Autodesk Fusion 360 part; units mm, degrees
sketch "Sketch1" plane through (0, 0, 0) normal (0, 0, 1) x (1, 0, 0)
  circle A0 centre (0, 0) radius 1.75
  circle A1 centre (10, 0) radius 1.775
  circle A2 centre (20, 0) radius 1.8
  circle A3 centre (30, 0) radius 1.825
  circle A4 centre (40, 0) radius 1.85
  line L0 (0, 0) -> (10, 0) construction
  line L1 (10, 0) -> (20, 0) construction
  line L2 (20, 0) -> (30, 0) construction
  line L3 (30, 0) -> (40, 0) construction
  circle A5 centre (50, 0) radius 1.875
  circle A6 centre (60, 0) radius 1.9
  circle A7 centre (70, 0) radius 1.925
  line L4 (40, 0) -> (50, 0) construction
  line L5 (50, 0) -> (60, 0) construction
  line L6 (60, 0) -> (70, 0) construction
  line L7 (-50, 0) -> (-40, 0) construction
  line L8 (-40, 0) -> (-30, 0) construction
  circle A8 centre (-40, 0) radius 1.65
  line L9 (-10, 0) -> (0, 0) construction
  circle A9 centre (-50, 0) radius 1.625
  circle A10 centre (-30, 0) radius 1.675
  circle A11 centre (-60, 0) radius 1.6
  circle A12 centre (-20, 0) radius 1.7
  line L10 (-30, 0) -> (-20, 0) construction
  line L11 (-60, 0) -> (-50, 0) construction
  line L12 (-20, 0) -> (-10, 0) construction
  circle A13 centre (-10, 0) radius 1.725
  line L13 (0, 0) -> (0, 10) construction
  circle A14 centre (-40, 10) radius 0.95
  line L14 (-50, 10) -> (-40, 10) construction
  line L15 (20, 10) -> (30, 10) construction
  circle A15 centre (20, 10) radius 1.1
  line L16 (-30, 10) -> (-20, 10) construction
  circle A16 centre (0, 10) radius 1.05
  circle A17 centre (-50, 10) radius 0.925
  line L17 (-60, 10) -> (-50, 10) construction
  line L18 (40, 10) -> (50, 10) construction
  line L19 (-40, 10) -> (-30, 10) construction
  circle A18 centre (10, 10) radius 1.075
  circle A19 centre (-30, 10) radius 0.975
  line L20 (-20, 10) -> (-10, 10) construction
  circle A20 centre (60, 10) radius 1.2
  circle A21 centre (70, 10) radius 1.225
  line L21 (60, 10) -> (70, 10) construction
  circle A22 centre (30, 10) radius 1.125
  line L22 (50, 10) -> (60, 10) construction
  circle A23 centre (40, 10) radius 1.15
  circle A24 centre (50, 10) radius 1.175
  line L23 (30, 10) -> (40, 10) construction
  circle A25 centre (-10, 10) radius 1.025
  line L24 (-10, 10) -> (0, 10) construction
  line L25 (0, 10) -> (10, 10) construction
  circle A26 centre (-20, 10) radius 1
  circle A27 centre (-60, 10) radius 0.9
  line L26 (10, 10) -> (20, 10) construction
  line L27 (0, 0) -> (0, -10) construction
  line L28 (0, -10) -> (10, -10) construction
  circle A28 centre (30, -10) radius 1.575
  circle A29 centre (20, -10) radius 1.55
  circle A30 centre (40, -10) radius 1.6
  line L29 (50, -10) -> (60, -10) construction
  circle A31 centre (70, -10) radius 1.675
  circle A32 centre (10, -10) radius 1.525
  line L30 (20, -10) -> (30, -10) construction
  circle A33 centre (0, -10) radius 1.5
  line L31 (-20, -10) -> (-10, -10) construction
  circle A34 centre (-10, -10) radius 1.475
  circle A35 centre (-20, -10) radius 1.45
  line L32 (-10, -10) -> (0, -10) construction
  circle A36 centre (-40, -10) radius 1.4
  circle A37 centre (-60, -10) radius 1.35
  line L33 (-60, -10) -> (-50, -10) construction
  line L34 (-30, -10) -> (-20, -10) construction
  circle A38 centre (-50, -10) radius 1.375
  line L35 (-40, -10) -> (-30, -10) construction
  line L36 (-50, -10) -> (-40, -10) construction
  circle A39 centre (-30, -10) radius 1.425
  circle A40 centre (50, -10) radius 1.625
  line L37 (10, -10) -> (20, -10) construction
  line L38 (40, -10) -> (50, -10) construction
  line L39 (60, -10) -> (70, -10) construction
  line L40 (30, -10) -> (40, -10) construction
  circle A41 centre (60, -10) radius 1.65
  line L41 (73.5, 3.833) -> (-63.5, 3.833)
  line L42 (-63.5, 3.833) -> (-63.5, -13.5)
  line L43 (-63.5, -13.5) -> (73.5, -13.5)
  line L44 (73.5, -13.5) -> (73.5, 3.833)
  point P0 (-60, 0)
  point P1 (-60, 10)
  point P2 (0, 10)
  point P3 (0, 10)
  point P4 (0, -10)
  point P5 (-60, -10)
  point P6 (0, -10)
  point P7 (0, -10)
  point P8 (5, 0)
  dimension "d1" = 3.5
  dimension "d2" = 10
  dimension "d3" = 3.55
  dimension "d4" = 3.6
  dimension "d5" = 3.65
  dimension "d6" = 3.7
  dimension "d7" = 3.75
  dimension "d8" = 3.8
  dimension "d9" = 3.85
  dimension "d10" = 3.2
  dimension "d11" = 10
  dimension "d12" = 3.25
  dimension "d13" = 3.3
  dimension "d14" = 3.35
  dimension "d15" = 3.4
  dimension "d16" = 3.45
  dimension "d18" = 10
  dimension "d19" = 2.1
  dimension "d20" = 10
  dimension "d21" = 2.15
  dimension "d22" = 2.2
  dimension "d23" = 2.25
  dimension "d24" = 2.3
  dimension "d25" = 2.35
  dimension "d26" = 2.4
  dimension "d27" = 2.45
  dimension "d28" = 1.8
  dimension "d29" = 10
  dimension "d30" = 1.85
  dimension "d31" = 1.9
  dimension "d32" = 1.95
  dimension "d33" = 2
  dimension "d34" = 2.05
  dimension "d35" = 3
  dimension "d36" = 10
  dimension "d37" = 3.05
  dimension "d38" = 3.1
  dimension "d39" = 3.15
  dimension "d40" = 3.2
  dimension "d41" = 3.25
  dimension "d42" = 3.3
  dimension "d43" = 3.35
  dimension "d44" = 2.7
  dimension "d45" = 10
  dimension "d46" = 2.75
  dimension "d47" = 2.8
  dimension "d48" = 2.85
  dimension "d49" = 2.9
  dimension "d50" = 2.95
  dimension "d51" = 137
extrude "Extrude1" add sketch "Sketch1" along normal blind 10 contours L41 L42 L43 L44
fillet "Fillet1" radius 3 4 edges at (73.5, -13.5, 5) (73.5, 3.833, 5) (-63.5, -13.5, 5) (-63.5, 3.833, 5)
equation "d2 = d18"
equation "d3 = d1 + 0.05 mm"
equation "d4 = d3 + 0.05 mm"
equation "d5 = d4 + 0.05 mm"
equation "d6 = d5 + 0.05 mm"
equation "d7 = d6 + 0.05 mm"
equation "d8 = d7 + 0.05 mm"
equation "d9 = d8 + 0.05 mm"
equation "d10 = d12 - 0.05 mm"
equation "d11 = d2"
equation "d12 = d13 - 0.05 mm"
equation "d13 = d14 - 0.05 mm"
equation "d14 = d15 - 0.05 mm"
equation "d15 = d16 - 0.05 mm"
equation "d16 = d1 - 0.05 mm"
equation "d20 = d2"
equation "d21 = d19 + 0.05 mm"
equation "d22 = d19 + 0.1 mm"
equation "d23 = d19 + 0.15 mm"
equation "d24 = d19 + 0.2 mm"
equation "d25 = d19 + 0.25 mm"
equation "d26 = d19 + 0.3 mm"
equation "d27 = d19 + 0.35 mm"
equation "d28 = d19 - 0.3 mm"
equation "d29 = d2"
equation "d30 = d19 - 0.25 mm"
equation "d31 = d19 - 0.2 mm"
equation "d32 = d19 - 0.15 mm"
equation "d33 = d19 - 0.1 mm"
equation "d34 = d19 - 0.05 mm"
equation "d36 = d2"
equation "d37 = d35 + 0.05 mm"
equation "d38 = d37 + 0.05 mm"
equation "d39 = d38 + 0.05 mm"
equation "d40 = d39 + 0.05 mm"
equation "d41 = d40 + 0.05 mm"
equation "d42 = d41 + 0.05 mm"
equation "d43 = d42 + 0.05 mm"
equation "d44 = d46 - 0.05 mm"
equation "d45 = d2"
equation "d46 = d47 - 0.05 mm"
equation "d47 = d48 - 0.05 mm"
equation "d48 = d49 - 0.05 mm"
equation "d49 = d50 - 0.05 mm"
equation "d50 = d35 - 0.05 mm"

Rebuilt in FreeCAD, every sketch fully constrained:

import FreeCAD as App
import Part
import Sketcher

V = App.Vector
Q = App.Units.Quantity


def edges_at(feature, points):
    """Names of the edges that pass closest to the given points."""
    edges = feature.Shape.Edges
    near = lambda p: min(range(len(edges)), key=lambda i: edges[i].distToShape(Part.Vertex(*p))[0])
    return sorted({f"Edge{near(p) + 1}" for p in points})

doc = App.newDocument("Part")
body = doc.addObject("PartDesign::Body", "Body")

# Sketch on XY plane
sketch1 = doc.addObject("Sketcher::SketchObject", "Sketch")
body.addObject(sketch1)
sketch1.AttachmentSupport = (doc.XY_Plane, [""])
sketch1.MapMode = "FlatFace"
sketch1.addGeometry([
    Part.LineSegment(V(73.5, -13.5, 0), V(73.5, 3.833, 0)),  # 0
    Part.LineSegment(V(73.5, 3.833, 0), V(-63.5, 3.833, 0)),  # 1
    Part.LineSegment(V(-63.5, 3.833, 0), V(-63.5, -13.5, 0)),  # 2
    Part.LineSegment(V(-63.5, -13.5, 0), V(73.5, -13.5, 0)),  # 3
    Part.Circle(V(-60, -10, 0), V(0, 0, 1), 1.35),  # 4
    Part.Circle(V(-50, -10, 0), V(0, 0, 1), 1.375),  # 5
    Part.Circle(V(-40, -10, 0), V(0, 0, 1), 1.4),  # 6
    Part.Circle(V(-30, -10, 0), V(0, 0, 1), 1.425),  # 7
    Part.Circle(V(-20, -10, 0), V(0, 0, 1), 1.45),  # 8
    Part.Circle(V(-10, -10, 0), V(0, 0, 1), 1.475),  # 9
    Part.Circle(V(0, -10, 0), V(0, 0, 1), 1.5),  # 10
    Part.Circle(V(10, -10, 0), V(0, 0, 1), 1.525),  # 11
    Part.Circle(V(20, -10, 0), V(0, 0, 1), 1.55),  # 12
    Part.Circle(V(30, -10, 0), V(0, 0, 1), 1.575),  # 13
    Part.Circle(V(40, -10, 0), V(0, 0, 1), 1.6),  # 14
    Part.Circle(V(50, -10, 0), V(0, 0, 1), 1.625),  # 15
    Part.Circle(V(60, -10, 0), V(0, 0, 1), 1.65),  # 16
    Part.Circle(V(70, -10, 0), V(0, 0, 1), 1.675),  # 17
    Part.Circle(V(-60, 0, 0), V(0, 0, 1), 1.6),  # 18
    Part.Circle(V(-50, 0, 0), V(0, 0, 1), 1.625),  # 19
    Part.Circle(V(-40, 0, 0), V(0, 0, 1), 1.65),  # 20
    Part.Circle(V(-30, 0, 0), V(0, 0, 1), 1.675),  # 21
    Part.Circle(V(-20, 0, 0), V(0, 0, 1), 1.7),  # 22
    Part.Circle(V(-10, 0, 0), V(0, 0, 1), 1.725),  # 23
    Part.Circle(V(0, 0, 0), V(0, 0, 1), 1.75),  # 24
    Part.Circle(V(10, 0, 0), V(0, 0, 1), 1.775),  # 25
    Part.Circle(V(20, 0, 0), V(0, 0, 1), 1.8),  # 26
    Part.Circle(V(30, 0, 0), V(0, 0, 1), 1.825),  # 27
    Part.Circle(V(40, 0, 0), V(0, 0, 1), 1.85),  # 28
    Part.Circle(V(50, 0, 0), V(0, 0, 1), 1.875),  # 29
    Part.Circle(V(60, 0, 0), V(0, 0, 1), 1.9),  # 30
    Part.Circle(V(70, 0, 0), V(0, 0, 1), 1.925),  # 31
], False)
sketch1.addConstraint([
    Sketcher.Constraint("Coincident", 0, 2, 1, 1),
    Sketcher.Constraint("Coincident", 1, 2, 2, 1),
    Sketcher.Constraint("Coincident", 2, 2, 3, 1),
    Sketcher.Constraint("Coincident", 3, 2, 0, 1),
    Sketcher.Constraint("Vertical", 0),
    Sketcher.Constraint("Horizontal", 1),
    Sketcher.Constraint("Vertical", 2),
    Sketcher.Constraint("Horizontal", 3),
    Sketcher.Constraint("Coincident", 24, 3, -1, 1),
    Sketcher.Constraint("Equal", 14, 18),
    Sketcher.Constraint("Equal", 15, 19),
    Sketcher.Constraint("Equal", 16, 20),
    Sketcher.Constraint("Equal", 17, 21),
    Sketcher.Constraint("Symmetric", 23, 3, 25, 3, -1, 1),
    Sketcher.Constraint("Symmetric", 22, 3, 26, 3, -1, 1),
    Sketcher.Constraint("Symmetric", 21, 3, 27, 3, -1, 1),
    Sketcher.Constraint("Symmetric", 20, 3, 28, 3, -1, 1),
    Sketcher.Constraint("Symmetric", 19, 3, 29, 3, -1, 1),
    Sketcher.Constraint("Symmetric", 18, 3, 30, 3, -1, 1),
    Sketcher.Constraint("Symmetric", 9, 3, 11, 3, -2),
    Sketcher.Constraint("Symmetric", 8, 3, 12, 3, -2),
    Sketcher.Constraint("Symmetric", 7, 3, 13, 3, -2),
    Sketcher.Constraint("Symmetric", 6, 3, 14, 3, -2),
    Sketcher.Constraint("Symmetric", 5, 3, 15, 3, -2),
    Sketcher.Constraint("Symmetric", 4, 3, 16, 3, -2),
    Sketcher.Constraint("PointOnObject", 10, 3, -2),
    Sketcher.Constraint("PointOnObject", 18, 3, -1),
    Sketcher.Constraint("PointOnObject", 19, 3, -1),
    Sketcher.Constraint("PointOnObject", 20, 3, -1),
    Sketcher.Constraint("PointOnObject", 21, 3, -1),
    Sketcher.Constraint("PointOnObject", 22, 3, -1),
    Sketcher.Constraint("PointOnObject", 23, 3, -1),
    Sketcher.Constraint("PointOnObject", 31, 3, -1),
    Sketcher.Constraint("Horizontal", 4, 3, 5, 3),
    Sketcher.Constraint("Horizontal", 5, 3, 6, 3),
    Sketcher.Constraint("Horizontal", 6, 3, 7, 3),
    Sketcher.Constraint("Horizontal", 7, 3, 8, 3),
    Sketcher.Constraint("Horizontal", 8, 3, 9, 3),
    Sketcher.Constraint("Horizontal", 9, 3, 10, 3),
    Sketcher.Constraint("Horizontal", 16, 3, 17, 3),
    Sketcher.Constraint("Vertical", 4, 3, 18, 3),
    Sketcher.Constraint("Vertical", 5, 3, 19, 3),
    Sketcher.Constraint("Vertical", 6, 3, 20, 3),
    Sketcher.Constraint("Vertical", 7, 3, 21, 3),
    Sketcher.Constraint("Vertical", 8, 3, 22, 3),
    Sketcher.Constraint("Vertical", 9, 3, 23, 3),
    Sketcher.Constraint("Vertical", 17, 3, 31, 3),
    Sketcher.Constraint("Diameter", 10, Q("3 mm")),
    Sketcher.Constraint("Diameter", 4, Q("2.7 mm")),
    Sketcher.Constraint("Diameter", 6, Q("2.8 mm")),
    Sketcher.Constraint("Diameter", 8, Q("2.9 mm")),
    Sketcher.Constraint("Diameter", 12, Q("3.1 mm")),
    Sketcher.Constraint("Diameter", 14, Q("3.2 mm")),
    Sketcher.Constraint("Diameter", 16, Q("3.3 mm")),
    Sketcher.Constraint("Diameter", 22, Q("3.4 mm")),
    Sketcher.Constraint("Diameter", 24, Q("3.5 mm")),
    Sketcher.Constraint("Diameter", 26, Q("3.6 mm")),
    Sketcher.Constraint("Diameter", 28, Q("3.7 mm")),
    Sketcher.Constraint("Diameter", 30, Q("3.8 mm")),
    Sketcher.Constraint("Diameter", 5, Q("2.75 mm")),
    Sketcher.Constraint("Diameter", 7, Q("2.85 mm")),
    Sketcher.Constraint("Diameter", 9, Q("2.95 mm")),
    Sketcher.Constraint("Diameter", 11, Q("3.05 mm")),
    Sketcher.Constraint("Diameter", 13, Q("3.15 mm")),
    Sketcher.Constraint("Diameter", 15, Q("3.25 mm")),
    Sketcher.Constraint("Diameter", 17, Q("3.35 mm")),
    Sketcher.Constraint("Diameter", 23, Q("3.45 mm")),
    Sketcher.Constraint("Diameter", 25, Q("3.55 mm")),
    Sketcher.Constraint("Diameter", 27, Q("3.65 mm")),
    Sketcher.Constraint("Diameter", 29, Q("3.75 mm")),
    Sketcher.Constraint("Diameter", 31, Q("3.85 mm")),
    Sketcher.Constraint("DistanceX", 1, 2, 1, 1, Q("137 mm")),
    Sketcher.Constraint("DistanceY", 4, 3, -1, 1, Q("10 mm")),
    Sketcher.Constraint("DistanceX", 9, 3, -1, 1, Q("10 mm")),
    Sketcher.Constraint("DistanceX", 4, 3, 5, 3, Q("10 mm")),
    Sketcher.Constraint("DistanceX", 5, 3, 6, 3, Q("10 mm")),
    Sketcher.Constraint("DistanceX", 6, 3, 7, 3, Q("10 mm")),
    Sketcher.Constraint("DistanceX", 7, 3, 8, 3, Q("10 mm")),
    Sketcher.Constraint("DistanceX", 8, 3, 9, 3, Q("10 mm")),
    Sketcher.Constraint("DistanceX", 16, 3, 17, 3, Q("10 mm")),
    Sketcher.Constraint("DistanceX", 31, 3, 0, 2, Q("3.5 mm")),
    Sketcher.Constraint("DistanceY", 2, 2, 4, 3, Q("3.5 mm")),
    Sketcher.Constraint("DistanceY", 0, 1, 0, 2, Q("17.333 mm")),
])
pad1 = doc.addObject("PartDesign::Pad", "Pad")
body.addObject(pad1)
pad1.Profile = sketch1
pad1.Length = 10
doc.recompute()

fillet = doc.addObject("PartDesign::Fillet", "Fillet")
body.addObject(fillet)
fillet.Base = (pad1, edges_at(pad1, [
    (73.5, -13.5, 5),
    (73.5, 3.833, 5),
    (-63.5, -13.5, 5),
    (-63.5, 3.833, 5),
]))
fillet.Radius = 3

doc.recompute()
